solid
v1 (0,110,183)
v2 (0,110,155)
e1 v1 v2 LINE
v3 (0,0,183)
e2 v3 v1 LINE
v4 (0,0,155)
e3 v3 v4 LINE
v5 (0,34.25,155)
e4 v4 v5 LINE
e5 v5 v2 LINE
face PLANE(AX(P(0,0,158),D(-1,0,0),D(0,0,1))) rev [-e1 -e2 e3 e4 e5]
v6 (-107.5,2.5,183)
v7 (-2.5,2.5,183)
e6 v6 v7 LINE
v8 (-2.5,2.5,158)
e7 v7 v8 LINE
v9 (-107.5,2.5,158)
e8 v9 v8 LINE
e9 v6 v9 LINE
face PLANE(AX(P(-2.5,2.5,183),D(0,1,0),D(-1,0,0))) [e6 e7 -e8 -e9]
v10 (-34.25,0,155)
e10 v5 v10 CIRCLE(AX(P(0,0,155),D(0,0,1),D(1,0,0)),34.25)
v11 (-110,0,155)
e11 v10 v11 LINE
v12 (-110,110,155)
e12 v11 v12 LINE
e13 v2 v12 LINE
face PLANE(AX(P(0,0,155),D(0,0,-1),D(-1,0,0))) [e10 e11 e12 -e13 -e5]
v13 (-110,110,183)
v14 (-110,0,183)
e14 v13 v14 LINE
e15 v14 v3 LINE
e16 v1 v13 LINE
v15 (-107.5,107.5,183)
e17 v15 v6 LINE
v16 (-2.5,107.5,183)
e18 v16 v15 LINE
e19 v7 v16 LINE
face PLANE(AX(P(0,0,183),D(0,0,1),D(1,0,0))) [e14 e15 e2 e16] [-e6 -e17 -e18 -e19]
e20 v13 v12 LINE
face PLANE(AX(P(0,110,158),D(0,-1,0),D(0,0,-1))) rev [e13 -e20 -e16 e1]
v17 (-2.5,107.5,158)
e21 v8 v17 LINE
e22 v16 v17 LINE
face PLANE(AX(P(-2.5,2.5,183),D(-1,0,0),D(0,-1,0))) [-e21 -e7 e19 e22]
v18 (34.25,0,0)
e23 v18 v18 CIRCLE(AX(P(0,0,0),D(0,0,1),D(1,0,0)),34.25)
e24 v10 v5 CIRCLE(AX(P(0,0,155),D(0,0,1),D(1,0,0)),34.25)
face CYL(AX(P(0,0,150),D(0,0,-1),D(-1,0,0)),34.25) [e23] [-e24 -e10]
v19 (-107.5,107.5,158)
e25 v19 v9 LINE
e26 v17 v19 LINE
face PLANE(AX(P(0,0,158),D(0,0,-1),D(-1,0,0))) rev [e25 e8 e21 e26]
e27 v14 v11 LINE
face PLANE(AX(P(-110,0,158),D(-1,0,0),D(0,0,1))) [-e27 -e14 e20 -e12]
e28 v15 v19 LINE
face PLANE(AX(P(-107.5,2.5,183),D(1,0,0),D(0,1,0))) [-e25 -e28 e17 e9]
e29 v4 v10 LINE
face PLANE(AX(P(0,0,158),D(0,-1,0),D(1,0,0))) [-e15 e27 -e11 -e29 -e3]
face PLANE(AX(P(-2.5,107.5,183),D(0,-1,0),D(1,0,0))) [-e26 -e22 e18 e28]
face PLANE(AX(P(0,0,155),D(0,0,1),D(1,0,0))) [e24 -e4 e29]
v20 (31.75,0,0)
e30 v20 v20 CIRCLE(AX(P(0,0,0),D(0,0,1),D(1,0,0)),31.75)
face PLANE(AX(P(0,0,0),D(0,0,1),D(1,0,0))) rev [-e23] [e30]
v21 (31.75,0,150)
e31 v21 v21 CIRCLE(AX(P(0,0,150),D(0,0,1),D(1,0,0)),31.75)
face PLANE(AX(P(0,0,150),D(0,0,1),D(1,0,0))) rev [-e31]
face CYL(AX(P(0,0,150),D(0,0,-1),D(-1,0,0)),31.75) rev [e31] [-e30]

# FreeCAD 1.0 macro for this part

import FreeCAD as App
import Part
import Sketcher

V = App.Vector
Q = App.Units.Quantity


def add_polygon(sketch, points):
    """Adds a closed chain of lines whose ends are joined by coincident constraints."""
    first, n = sketch.GeometryCount, len(points)
    for a, b in zip(points, points[1:] + points[:1]):
        sketch.addGeometry(Part.LineSegment(App.Vector(*a, 0), App.Vector(*b, 0)), False)
    for i in range(n):
        sketch.addConstraint(Sketcher.Constraint("Coincident", first + i, 2, first + (i + 1) % n, 1))

doc = App.newDocument("Part")
body = doc.addObject("PartDesign::Body", "Body")

# Sketch on XY plane
sketch1 = body.newObject("Sketcher::SketchObject", "Sketch")
sketch1.AttachmentSupport = (doc.getObject("XY_Plane"), [""])
sketch1.MapMode = "FlatFace"
sketch1.addGeometry([
    Part.Circle(V(0, 0, 0), V(0, 0, 1), 34.25),
    Part.Circle(V(0, 0, 0), V(0, 0, 1), 31.75),
], False)
sketch1.addConstraint([
    Sketcher.Constraint("Coincident", 0, 3, -1, 1),
    Sketcher.Constraint("Coincident", 1, 3, -1, 1),
    Sketcher.Constraint("Diameter", 0, Q("68.5 mm")),
    Sketcher.Constraint("Diameter", 1, Q("63.5 mm")),
])
pad1 = body.newObject("PartDesign::Pad", "Pad")
pad1.Profile = sketch1
pad1.Length = 150

# Sketch on XY plane
sketch2 = body.newObject("Sketcher::SketchObject", "Sketch001")
sketch2.AttachmentSupport = (doc.getObject("XY_Plane"), [""])
sketch2.MapMode = "FlatFace"
sketch2.AttachmentOffset = App.Placement(V(0, 0, 150), App.Rotation())
sketch2.addGeometry(Part.Circle(V(0, 0, 0), V(0, 0, 1), 34.25), False)
sketch2.addConstraint([
    Sketcher.Constraint("Coincident", 0, 3, -1, 1),
    Sketcher.Constraint("Diameter", 0, Q("68.5 mm")),
])
pad2 = body.newObject("PartDesign::Pad", "Pad001")
pad2.Profile = sketch2
pad2.Length = 5

# Sketch on XY plane
sketch3 = body.newObject("Sketcher::SketchObject", "Sketch002")
sketch3.AttachmentSupport = (doc.getObject("XY_Plane"), [""])
sketch3.MapMode = "FlatFace"
sketch3.AttachmentOffset = App.Placement(V(0, 0, 155), App.Rotation())
add_polygon(sketch3, [(-110, 110), (-110, 0), (0, 0), (0, 110)])  # lines 0-3
sketch3.addConstraint([
    Sketcher.Constraint("Vertical", 0),
    Sketcher.Constraint("Horizontal", 1),
    Sketcher.Constraint("Vertical", 2),
    Sketcher.Constraint("Horizontal", 3),
    Sketcher.Constraint("Coincident", 1, 2, -1, 1),
    Sketcher.Constraint("Equal", 3, 0),
    Sketcher.Constraint("DistanceX", 1, 1, 1, 2, Q("110 mm")),
])
pad3 = body.newObject("PartDesign::Pad", "Pad002")
pad3.Profile = sketch3
pad3.Length = 3

# Sketch on XY plane
sketch4 = body.newObject("Sketcher::SketchObject", "Sketch003")
sketch4.AttachmentSupport = (doc.getObject("XY_Plane"), [""])
sketch4.MapMode = "FlatFace"
sketch4.AttachmentOffset = App.Placement(V(0, 0, 158), App.Rotation())
add_polygon(sketch4, [(-110, 110), (-110, 0), (0, 0), (0, 110)])  # lines 0-3
add_polygon(sketch4, [(-2.5, 2.5), (-107.5, 2.5), (-107.5, 107.5), (-2.5, 107.5)])  # lines 4-7
sketch4.addConstraint([
    Sketcher.Constraint("Vertical", 0),
    Sketcher.Constraint("Horizontal", 1),
    Sketcher.Constraint("Vertical", 2),
    Sketcher.Constraint("Horizontal", 3),
    Sketcher.Constraint("Horizontal", 4),
    Sketcher.Constraint("Vertical", 5),
    Sketcher.Constraint("Horizontal", 6),
    Sketcher.Constraint("Vertical", 7),
    Sketcher.Constraint("Coincident", 1, 2, -1, 1),
    Sketcher.Constraint("Equal", 3, 0),
    Sketcher.Constraint("Equal", 6, 5),
    Sketcher.Constraint("DistanceX", 1, 1, 1, 2, Q("110 mm")),
    Sketcher.Constraint("DistanceX", 4, 2, 4, 1, Q("105 mm")),
    Sketcher.Constraint("DistanceX", 4, 2, -1, 1, Q("107.5 mm")),
    Sketcher.Constraint("DistanceY", -1, 1, 4, 2, Q("2.5 mm")),
])
pad4 = body.newObject("PartDesign::Pad", "Pad003")
pad4.Profile = sketch4
pad4.Length = 25

doc.recompute()
